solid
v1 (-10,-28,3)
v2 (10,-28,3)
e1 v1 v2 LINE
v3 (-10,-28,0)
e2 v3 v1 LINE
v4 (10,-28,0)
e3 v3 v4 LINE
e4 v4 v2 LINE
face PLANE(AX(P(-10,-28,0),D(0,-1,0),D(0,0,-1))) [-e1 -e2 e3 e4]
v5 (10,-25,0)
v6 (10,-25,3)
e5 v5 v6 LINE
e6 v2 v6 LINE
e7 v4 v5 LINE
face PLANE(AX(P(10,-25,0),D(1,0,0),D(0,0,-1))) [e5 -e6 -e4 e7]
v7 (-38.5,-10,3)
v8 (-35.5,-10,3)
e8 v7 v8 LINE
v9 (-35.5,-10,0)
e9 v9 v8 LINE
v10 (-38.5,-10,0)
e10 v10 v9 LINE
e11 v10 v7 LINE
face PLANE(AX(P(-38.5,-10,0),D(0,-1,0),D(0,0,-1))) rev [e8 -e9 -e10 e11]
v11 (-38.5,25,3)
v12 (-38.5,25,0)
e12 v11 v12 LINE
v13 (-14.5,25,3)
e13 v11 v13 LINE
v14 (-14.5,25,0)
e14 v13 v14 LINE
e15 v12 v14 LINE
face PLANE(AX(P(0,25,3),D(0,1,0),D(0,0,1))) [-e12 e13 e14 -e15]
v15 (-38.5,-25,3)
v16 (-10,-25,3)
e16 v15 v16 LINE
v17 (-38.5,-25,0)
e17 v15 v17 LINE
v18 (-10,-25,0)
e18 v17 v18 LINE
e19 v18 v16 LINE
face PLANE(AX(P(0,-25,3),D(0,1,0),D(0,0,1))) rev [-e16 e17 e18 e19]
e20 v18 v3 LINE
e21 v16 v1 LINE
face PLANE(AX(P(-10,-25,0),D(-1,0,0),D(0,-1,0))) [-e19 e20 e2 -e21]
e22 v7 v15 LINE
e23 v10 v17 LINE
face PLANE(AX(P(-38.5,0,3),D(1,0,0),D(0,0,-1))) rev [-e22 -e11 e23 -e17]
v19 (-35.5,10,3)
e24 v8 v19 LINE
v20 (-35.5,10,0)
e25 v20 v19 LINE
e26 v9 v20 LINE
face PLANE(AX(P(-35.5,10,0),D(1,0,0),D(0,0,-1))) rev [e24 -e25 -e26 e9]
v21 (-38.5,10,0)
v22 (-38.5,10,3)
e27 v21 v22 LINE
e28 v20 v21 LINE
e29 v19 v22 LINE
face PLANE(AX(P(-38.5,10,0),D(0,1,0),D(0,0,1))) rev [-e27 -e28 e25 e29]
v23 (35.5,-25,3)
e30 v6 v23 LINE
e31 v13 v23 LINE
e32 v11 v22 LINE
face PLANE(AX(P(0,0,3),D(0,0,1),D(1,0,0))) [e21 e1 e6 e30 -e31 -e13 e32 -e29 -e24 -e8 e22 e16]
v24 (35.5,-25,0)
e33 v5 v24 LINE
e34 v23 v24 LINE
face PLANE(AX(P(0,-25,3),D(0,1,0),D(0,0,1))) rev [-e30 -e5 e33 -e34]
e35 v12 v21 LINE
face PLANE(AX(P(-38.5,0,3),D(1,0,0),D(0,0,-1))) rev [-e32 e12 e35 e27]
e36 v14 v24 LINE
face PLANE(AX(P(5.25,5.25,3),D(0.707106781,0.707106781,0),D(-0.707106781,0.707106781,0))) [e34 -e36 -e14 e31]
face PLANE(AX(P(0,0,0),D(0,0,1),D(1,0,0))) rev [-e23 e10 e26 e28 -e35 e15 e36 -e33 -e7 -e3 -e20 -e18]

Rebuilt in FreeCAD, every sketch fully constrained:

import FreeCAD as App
import Part
import Sketcher
Q = App.Units.Quantity

doc = App.newDocument("Part")
body = doc.addObject("PartDesign::Body", "Body")

sketch1 = doc.addObject("Sketcher::SketchObject", "Sketch")
body.addObject(sketch1)
sketch1.AttachmentSupport = (doc.XY_Plane, [""])
sketch1.MapMode = "FlatFace"
sketch1.addGeometry([
    Part.LineSegment(App.Vector(36, -25, 0), App.Vector(-14, 25, 0)),
    Part.LineSegment(App.Vector(-14, 25, 0), App.Vector(-38, 25, 0)),
    Part.LineSegment(App.Vector(-38, 25, 0), App.Vector(-38, -25, 0)),
    Part.LineSegment(App.Vector(-38, -25, 0), App.Vector(36, -25, 0)),
], False)
sketch1.addConstraint([
    Sketcher.Constraint("Coincident", 0, 2, 1, 1),
    Sketcher.Constraint("Coincident", 1, 2, 2, 1),
    Sketcher.Constraint("Coincident", 2, 2, 3, 1),
    Sketcher.Constraint("Coincident", 3, 2, 0, 1),
    Sketcher.Constraint("Horizontal", 1),
    Sketcher.Constraint("Vertical", 2),
    Sketcher.Constraint("Horizontal", 3),
    Sketcher.Constraint("DistanceX", 1, 2, 1, 1, Q("24 mm")),
    Sketcher.Constraint("DistanceX", 3, 1, 3, 2, Q("74 mm")),
    Sketcher.Constraint("DistanceY", 2, 2, 2, 1, Q("50 mm")),
    Sketcher.Constraint("DistanceY", -1, 1, 0, 2, Q("25 mm")),
    Sketcher.Constraint("DistanceX", 0, 2, -1, 1, Q("14.5 mm")),
])
pad1 = doc.addObject("PartDesign::Pad", "Pad")
body.addObject(pad1)
pad1.Profile = sketch1
pad1.Length = 3

sketch2 = doc.addObject("Sketcher::SketchObject", "Sketch001")
body.addObject(sketch2)
sketch2.AttachmentSupport = (doc.XY_Plane, [""])
sketch2.MapMode = "FlatFace"
sketch2.AttachmentOffset = App.Placement(App.Vector(0, 0, 3), App.Rotation())
sketch2.addGeometry([
    Part.LineSegment(App.Vector(-10, -25, 0), App.Vector(-10, -28, 0)),
    Part.LineSegment(App.Vector(-10, -28, 0), App.Vector(10, -28, 0)),
    Part.LineSegment(App.Vector(10, -28, 0), App.Vector(10, -25, 0)),
    Part.LineSegment(App.Vector(10, -25, 0), App.Vector(-10, -25, 0)),
], False)
sketch2.addConstraint([
    Sketcher.Constraint("Coincident", 0, 2, 1, 1),
    Sketcher.Constraint("Coincident", 1, 2, 2, 1),
    Sketcher.Constraint("Coincident", 2, 2, 3, 1),
    Sketcher.Constraint("Coincident", 3, 2, 0, 1),
    Sketcher.Constraint("Vertical", 0),
    Sketcher.Constraint("Horizontal", 1),
    Sketcher.Constraint("Vertical", 2),
    Sketcher.Constraint("Horizontal", 3),
    Sketcher.Constraint("DistanceX", 1, 1, 1, 2, Q("20 mm")),
    Sketcher.Constraint("DistanceY", 0, 2, 0, 1, Q("3 mm")),
    Sketcher.Constraint("DistanceX", 0, 2, -1, 1, Q("10 mm")),
    Sketcher.Constraint("DistanceY", 0, 2, -1, 1, Q("28 mm")),
])
pad2 = doc.addObject("PartDesign::Pad", "Pad001")
body.addObject(pad2)
pad2.Profile = sketch2
pad2.Length = 3
pad2.Reversed = True

sketch3 = doc.addObject("Sketcher::SketchObject", "Sketch002")
body.addObject(sketch3)
sketch3.AttachmentSupport = (doc.XY_Plane, [""])
sketch3.MapMode = "FlatFace"
sketch3.AttachmentOffset = App.Placement(App.Vector(0, 0, 3), App.Rotation())
sketch3.addGeometry([
    Part.LineSegment(App.Vector(-38.5, 10, 0), App.Vector(-38.5, -10, 0)),
    Part.LineSegment(App.Vector(-38.5, -10, 0), App.Vector(-35.5, -10, 0)),
    Part.LineSegment(App.Vector(-35.5, -10, 0), App.Vector(-35.5, 10, 0)),
    Part.LineSegment(App.Vector(-35.5, 10, 0), App.Vector(-38.5, 10, 0)),
], False)
sketch3.addConstraint([
    Sketcher.Constraint("Coincident", 0, 2, 1, 1),
    Sketcher.Constraint("Coincident", 1, 2, 2, 1),
    Sketcher.Constraint("Coincident", 2, 2, 3, 1),
    Sketcher.Constraint("Coincident", 3, 2, 0, 1),
    Sketcher.Constraint("Vertical", 0),
    Sketcher.Constraint("Horizontal", 1),
    Sketcher.Constraint("Vertical", 2),
    Sketcher.Constraint("Horizontal", 3),
    Sketcher.Constraint("DistanceX", 1, 1, 1, 2, Q("3 mm")),
    Sketcher.Constraint("DistanceY", 0, 2, 0, 1, Q("20 mm")),
    Sketcher.Constraint("DistanceY", 0, 2, -1, 1, Q("10 mm")),
    Sketcher.Constraint("DistanceX", 0, 2, -1, 1, Q("38.5 mm")),
])
pocket1 = doc.addObject("PartDesign::Pocket", "Pocket")
body.addObject(pocket1)
pocket1.Profile = sketch3
pocket1.Length = 3

doc.recompute()
